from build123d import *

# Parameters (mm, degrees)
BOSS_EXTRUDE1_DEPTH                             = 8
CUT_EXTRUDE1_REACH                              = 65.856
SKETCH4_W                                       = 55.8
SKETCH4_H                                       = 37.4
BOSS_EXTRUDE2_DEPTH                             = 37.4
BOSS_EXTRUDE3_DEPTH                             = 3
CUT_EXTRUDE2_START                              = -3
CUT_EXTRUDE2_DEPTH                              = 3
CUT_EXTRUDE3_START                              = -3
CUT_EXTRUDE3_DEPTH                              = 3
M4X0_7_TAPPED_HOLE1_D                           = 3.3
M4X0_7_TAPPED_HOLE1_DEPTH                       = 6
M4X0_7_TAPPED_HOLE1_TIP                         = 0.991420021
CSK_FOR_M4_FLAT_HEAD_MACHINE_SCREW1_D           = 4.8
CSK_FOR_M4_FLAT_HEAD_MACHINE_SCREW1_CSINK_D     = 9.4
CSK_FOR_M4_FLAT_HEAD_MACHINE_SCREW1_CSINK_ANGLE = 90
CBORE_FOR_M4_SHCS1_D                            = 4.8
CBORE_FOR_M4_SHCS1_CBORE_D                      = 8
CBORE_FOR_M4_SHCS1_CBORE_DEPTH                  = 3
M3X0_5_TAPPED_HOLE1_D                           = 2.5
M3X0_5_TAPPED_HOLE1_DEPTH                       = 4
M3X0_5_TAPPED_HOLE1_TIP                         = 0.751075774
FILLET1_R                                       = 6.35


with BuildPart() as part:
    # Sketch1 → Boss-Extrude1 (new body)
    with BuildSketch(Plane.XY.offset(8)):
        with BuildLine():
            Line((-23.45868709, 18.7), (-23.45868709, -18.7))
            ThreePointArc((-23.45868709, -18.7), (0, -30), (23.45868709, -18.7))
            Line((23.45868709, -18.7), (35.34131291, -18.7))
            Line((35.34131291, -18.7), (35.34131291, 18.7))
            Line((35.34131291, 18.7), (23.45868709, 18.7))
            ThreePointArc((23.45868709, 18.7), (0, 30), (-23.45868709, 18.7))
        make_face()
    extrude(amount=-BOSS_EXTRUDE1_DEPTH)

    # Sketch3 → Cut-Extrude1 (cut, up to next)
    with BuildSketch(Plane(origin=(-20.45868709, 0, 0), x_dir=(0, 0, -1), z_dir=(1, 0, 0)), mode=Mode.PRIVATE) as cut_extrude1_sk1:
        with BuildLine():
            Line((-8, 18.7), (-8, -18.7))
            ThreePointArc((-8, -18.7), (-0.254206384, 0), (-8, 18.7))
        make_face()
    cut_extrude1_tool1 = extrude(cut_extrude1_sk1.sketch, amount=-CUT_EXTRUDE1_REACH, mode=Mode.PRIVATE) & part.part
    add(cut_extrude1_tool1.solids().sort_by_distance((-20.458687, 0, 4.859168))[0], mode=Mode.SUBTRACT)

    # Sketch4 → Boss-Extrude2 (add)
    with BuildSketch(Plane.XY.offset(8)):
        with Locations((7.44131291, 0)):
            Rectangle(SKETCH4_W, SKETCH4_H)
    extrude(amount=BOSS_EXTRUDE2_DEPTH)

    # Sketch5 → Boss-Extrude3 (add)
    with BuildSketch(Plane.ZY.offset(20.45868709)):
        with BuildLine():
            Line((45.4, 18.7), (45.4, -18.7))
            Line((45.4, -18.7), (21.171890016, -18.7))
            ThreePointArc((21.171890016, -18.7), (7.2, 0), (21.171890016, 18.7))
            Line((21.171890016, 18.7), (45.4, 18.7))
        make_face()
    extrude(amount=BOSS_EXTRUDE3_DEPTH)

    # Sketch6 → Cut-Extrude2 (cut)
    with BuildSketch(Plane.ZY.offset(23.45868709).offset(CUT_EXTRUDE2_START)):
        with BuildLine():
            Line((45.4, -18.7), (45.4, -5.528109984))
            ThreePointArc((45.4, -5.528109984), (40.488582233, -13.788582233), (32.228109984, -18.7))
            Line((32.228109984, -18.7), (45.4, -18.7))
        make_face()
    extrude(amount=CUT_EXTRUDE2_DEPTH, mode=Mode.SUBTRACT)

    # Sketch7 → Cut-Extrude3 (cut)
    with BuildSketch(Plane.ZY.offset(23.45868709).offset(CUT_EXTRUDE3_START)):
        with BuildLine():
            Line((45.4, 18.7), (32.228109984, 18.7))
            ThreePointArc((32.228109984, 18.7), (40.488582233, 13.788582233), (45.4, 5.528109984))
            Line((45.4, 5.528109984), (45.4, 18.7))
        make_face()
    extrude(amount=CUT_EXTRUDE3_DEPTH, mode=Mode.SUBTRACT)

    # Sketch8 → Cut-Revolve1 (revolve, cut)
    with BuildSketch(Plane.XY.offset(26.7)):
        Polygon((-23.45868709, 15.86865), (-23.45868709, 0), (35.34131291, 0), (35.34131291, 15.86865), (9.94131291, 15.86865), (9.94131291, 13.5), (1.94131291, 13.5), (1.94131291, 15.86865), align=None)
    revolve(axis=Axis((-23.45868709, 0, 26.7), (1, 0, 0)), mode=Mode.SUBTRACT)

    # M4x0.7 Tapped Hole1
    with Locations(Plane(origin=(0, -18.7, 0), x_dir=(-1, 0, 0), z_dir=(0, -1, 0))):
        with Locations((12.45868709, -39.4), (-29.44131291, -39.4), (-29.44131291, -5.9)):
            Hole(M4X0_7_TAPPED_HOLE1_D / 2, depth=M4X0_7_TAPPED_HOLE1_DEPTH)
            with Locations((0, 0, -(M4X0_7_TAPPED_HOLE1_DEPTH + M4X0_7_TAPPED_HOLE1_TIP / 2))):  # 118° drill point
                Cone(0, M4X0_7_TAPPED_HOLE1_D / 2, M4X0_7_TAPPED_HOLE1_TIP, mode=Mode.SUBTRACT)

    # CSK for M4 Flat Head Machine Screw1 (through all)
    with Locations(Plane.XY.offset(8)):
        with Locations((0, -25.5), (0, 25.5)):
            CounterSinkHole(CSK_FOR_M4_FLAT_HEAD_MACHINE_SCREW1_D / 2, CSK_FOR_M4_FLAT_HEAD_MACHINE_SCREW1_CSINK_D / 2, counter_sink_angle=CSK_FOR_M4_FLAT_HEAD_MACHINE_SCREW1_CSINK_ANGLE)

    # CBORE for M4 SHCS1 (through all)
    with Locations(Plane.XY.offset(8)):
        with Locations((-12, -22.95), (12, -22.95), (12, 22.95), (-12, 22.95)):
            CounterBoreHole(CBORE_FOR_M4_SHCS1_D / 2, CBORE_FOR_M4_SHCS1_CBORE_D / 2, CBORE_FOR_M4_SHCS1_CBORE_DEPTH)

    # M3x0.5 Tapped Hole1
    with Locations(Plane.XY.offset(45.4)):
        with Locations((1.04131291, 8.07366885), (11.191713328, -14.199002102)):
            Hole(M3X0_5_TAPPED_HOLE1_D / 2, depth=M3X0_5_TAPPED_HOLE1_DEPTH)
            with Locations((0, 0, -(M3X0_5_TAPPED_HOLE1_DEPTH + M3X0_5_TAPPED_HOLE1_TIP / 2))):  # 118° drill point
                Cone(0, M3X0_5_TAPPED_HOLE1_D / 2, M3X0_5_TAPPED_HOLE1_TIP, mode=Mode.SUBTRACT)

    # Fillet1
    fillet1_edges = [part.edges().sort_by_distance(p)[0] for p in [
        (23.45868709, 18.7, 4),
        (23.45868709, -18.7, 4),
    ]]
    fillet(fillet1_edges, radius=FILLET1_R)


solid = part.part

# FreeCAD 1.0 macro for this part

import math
import FreeCAD as App
import Part
import Sketcher


def edges_at(feature, points):
    """Names of the edges that pass closest to the given points."""
    edges = feature.Shape.Edges
    near = lambda p: min(range(len(edges)), key=lambda i: edges[i].distToShape(Part.Vertex(*p))[0])
    return sorted({f"Edge{near(p) + 1}" for p in points})


def add_polygon(sketch, points):
    """Adds a closed chain of lines whose ends are joined by coincident constraints."""
    first, n = sketch.GeometryCount, len(points)
    for a, b in zip(points, points[1:] + points[:1]):
        sketch.addGeometry(Part.LineSegment(App.Vector(*a, 0), App.Vector(*b, 0)), False)
    for i in range(n):
        sketch.addConstraint(Sketcher.Constraint("Coincident", first + i, 2, first + (i + 1) % n, 1))

doc = App.newDocument("Part")
body = doc.addObject("PartDesign::Body", "Body")

# Sketch on XY plane
sketch1 = body.newObject("Sketcher::SketchObject", "Sketch")
sketch1.AttachmentSupport = (doc.getObject("XY_Plane"), [""])
sketch1.MapMode = "FlatFace"
sketch1.AttachmentOffset = App.Placement(App.Vector(0, 0, 8), App.Rotation())
sketch1.addGeometry([
    Part.LineSegment(App.Vector(-23, 19, 0), App.Vector(-23, -19, 0)),  # 0
    Part.ArcOfCircle(Part.Circle(App.Vector(0, 0, 0), App.Vector(0, 0, 1), 30), math.radians(-141), math.radians(-39)),  # 1
    Part.LineSegment(App.Vector(23, -19, 0), App.Vector(35, -19, 0)),  # 2
    Part.LineSegment(App.Vector(35, -19, 0), App.Vector(35, 19, 0)),  # 3
    Part.LineSegment(App.Vector(35, 19, 0), App.Vector(23, 19, 0)),  # 4
    Part.ArcOfCircle(Part.Circle(App.Vector(0, 0, 0), App.Vector(0, 0, 1), 30), math.radians(39), math.radians(141)),  # 5
], False)
sketch1.addConstraint([
    Sketcher.Constraint("Coincident", 0, 2, 1, 1),
    Sketcher.Constraint("Coincident", 1, 2, 2, 1),
    Sketcher.Constraint("Coincident", 2, 2, 3, 1),
    Sketcher.Constraint("Coincident", 3, 2, 4, 1),
    Sketcher.Constraint("Coincident", 4, 2, 5, 1),
    Sketcher.Constraint("Coincident", 5, 2, 0, 1),
    Sketcher.Constraint("Vertical", 0),
    Sketcher.Constraint("Horizontal", 2),
    Sketcher.Constraint("Vertical", 3),
    Sketcher.Constraint("Horizontal", 4),
    Sketcher.Constraint("Coincident", 1, 3, -1, 1),
    Sketcher.Constraint("Coincident", 5, 3, -1, 1),
    Sketcher.Constraint("Equal", 1, 5),
    Sketcher.Constraint("Horizontal", 0, 2, 1, 2),
    Sketcher.Constraint("Horizontal", 4, 2, 5, 2),
    Sketcher.Constraint("Radius", 1, 30.0),
    Sketcher.Constraint("DistanceY", 0, 2, 0, 1, 37.4),
    Sketcher.Constraint("DistanceX", 0, 2, 2, 2, 58.8),
])
pad1 = body.newObject("PartDesign::Pad", "Pad")
pad1.Profile = sketch1
pad1.Length = 8
pad1.Reversed = True

# Sketch on YZ plane
sketch2 = body.newObject("Sketcher::SketchObject", "Sketch001")
sketch2.AttachmentSupport = (doc.getObject("YZ_Plane"), [""])
sketch2.MapMode = "FlatFace"
sketch2.AttachmentOffset = App.Placement(App.Vector(0, 0, -20.458687), App.Rotation())
sketch2.addGeometry([
    Part.LineSegment(App.Vector(19, 8, 0), App.Vector(-19, 8, 0)),
    Part.ArcOfCircle(Part.Circle(App.Vector(0, 27, 0), App.Vector(0, 0, 1), 26), math.radians(-135), math.radians(-45)),
], False)
sketch2.addConstraint([
    Sketcher.Constraint("Coincident", 0, 1, 1, 2),
    Sketcher.Constraint("Coincident", 1, 1, 0, 2),
    Sketcher.Constraint("Horizontal", 0),
    Sketcher.Constraint("PointOnObject", 1, 3, -2),
    Sketcher.Constraint("DistanceX", 0, 2, 0, 1, 37.4),
    Sketcher.Constraint("DistanceY", -1, 1, 0, 1, 8.0),
    Sketcher.Constraint("DistanceY", -1, 1, 1, 3, 26.7),
])
pocket1 = body.newObject("PartDesign::Pocket", "Pocket")
pocket1.Profile = sketch2
pocket1.Type = "UpToFirst"

# Sketch on XY plane
sketch3 = body.newObject("Sketcher::SketchObject", "Sketch002")
sketch3.AttachmentSupport = (doc.getObject("XY_Plane"), [""])
sketch3.MapMode = "FlatFace"
sketch3.AttachmentOffset = App.Placement(App.Vector(0, 0, 8), App.Rotation())
add_polygon(sketch3, [(-20, 19), (-20, -19), (35, -19), (35, 19)])  # lines 0-3
sketch3.addConstraint([
    Sketcher.Constraint("Vertical", 0),
    Sketcher.Constraint("Horizontal", 1),
    Sketcher.Constraint("Vertical", 2),
    Sketcher.Constraint("Horizontal", 3),
    Sketcher.Constraint("DistanceX", 1, 1, 1, 2, 55.8),
    Sketcher.Constraint("DistanceY", 0, 2, 0, 1, 37.4),
    Sketcher.Constraint("DistanceY", 0, 2, -1, 1, 18.7),
    Sketcher.Constraint("DistanceX", 0, 2, -1, 1, 20.458687),
])
pad2 = body.newObject("PartDesign::Pad", "Pad001")
pad2.Profile = sketch3
pad2.Length = 37.4

# Sketch on YZ plane
sketch4 = body.newObject("Sketcher::SketchObject", "Sketch003")
sketch4.AttachmentSupport = (doc.getObject("YZ_Plane"), [""])
sketch4.MapMode = "FlatFace"
sketch4.AttachmentOffset = App.Placement(App.Vector(0, 0, -20.458687), App.Rotation())
sketch4.addGeometry([
    Part.LineSegment(App.Vector(-19, 45, 0), App.Vector(19, 45, 0)),
    Part.LineSegment(App.Vector(19, 45, 0), App.Vector(19, 21, 0)),
    Part.ArcOfCircle(Part.Circle(App.Vector(0, 27, 0), App.Vector(0, 0, 1), 20), math.radians(-164), math.radians(-16)),
    Part.LineSegment(App.Vector(-19, 21, 0), App.Vector(-19, 45, 0)),
], False)
sketch4.addConstraint([
    Sketcher.Constraint("Coincident", 0, 2, 1, 1),
    Sketcher.Constraint("Coincident", 1, 2, 2, 2),
    Sketcher.Constraint("Coincident", 2, 1, 3, 1),
    Sketcher.Constraint("Coincident", 3, 2, 0, 1),
    Sketcher.Constraint("Horizontal", 0),
    Sketcher.Constraint("Vertical", 1),
    Sketcher.Constraint("Vertical", 3),
    Sketcher.Constraint("Symmetric", 1, 2, 2, 1, -2),
    Sketcher.Constraint("Radius", 2, 19.5),
    Sketcher.Constraint("DistanceX", 0, 1, 0, 2, 37.4),
    Sketcher.Constraint("DistanceY", -1, 1, 2, 3, 26.7),
    Sketcher.Constraint("DistanceY", -1, 1, 0, 2, 45.4),
])
pad3 = body.newObject("PartDesign::Pad", "Pad002")
pad3.Profile = sketch4
pad3.Length = 3
pad3.Reversed = True

# Sketch on YZ plane
sketch5 = body.newObject("Sketcher::SketchObject", "Sketch004")
sketch5.AttachmentSupport = (doc.getObject("YZ_Plane"), [""])
sketch5.MapMode = "FlatFace"
sketch5.AttachmentOffset = App.Placement(App.Vector(0, 0, -20.458687), App.Rotation())
sketch5.addGeometry([
    Part.LineSegment(App.Vector(-19, 45, 0), App.Vector(-6, 45, 0)),
    Part.ArcOfCircle(Part.Circle(App.Vector(0, 27, 0), App.Vector(0, 0, 1), 20), math.radians(106), math.radians(164)),
    Part.LineSegment(App.Vector(-19, 32, 0), App.Vector(-19, 45, 0)),
], False)
sketch5.addConstraint([
    Sketcher.Constraint("Coincident", 0, 2, 1, 1),
    Sketcher.Constraint("Coincident", 1, 2, 2, 1),
    Sketcher.Constraint("Coincident", 2, 2, 0, 1),
    Sketcher.Constraint("Horizontal", 0),
    Sketcher.Constraint("Vertical", 2),
    Sketcher.Constraint("PointOnObject", 1, 3, -2),
    Sketcher.Constraint("Equal", 0, 2),
    Sketcher.Constraint("Radius", 1, 19.5),
    Sketcher.Constraint("DistanceY", -1, 1, 1, 3, 26.7),
    Sketcher.Constraint("DistanceY", -1, 1, 0, 2, 45.4),
])
pocket2 = body.newObject("PartDesign::Pocket", "Pocket001")
pocket2.Profile = sketch5
pocket2.Length = 3

# Sketch on YZ plane
sketch6 = body.newObject("Sketcher::SketchObject", "Sketch005")
sketch6.AttachmentSupport = (doc.getObject("YZ_Plane"), [""])
sketch6.MapMode = "FlatFace"
sketch6.AttachmentOffset = App.Placement(App.Vector(0, 0, -20.458687), App.Rotation())
sketch6.addGeometry([
    Part.LineSegment(App.Vector(19, 45, 0), App.Vector(19, 32, 0)),
    Part.ArcOfCircle(Part.Circle(App.Vector(0, 27, 0), App.Vector(0, 0, 1), 20), math.radians(16), math.radians(74)),
    Part.LineSegment(App.Vector(6, 45, 0), App.Vector(19, 45, 0)),
], False)
sketch6.addConstraint([
    Sketcher.Constraint("Coincident", 0, 2, 1, 1),
    Sketcher.Constraint("Coincident", 1, 2, 2, 1),
    Sketcher.Constraint("Coincident", 2, 2, 0, 1),
    Sketcher.Constraint("Vertical", 0),
    Sketcher.Constraint("Horizontal", 2),
    Sketcher.Constraint("PointOnObject", 1, 3, -2),
    Sketcher.Constraint("Equal", 2, 0),
    Sketcher.Constraint("Radius", 1, 19.5),
    Sketcher.Constraint("DistanceY", -1, 1, 1, 3, 26.7),
    Sketcher.Constraint("DistanceX", -1, 1, 0, 2, 18.7),
])
pocket3 = body.newObject("PartDesign::Pocket", "Pocket002")
pocket3.Profile = sketch6
pocket3.Length = 3

# Sketch on XY plane
sketch7 = body.newObject("Sketcher::SketchObject", "Sketch006")
sketch7.AttachmentSupport = (doc.getObject("XY_Plane"), [""])
sketch7.MapMode = "FlatFace"
sketch7.AttachmentOffset = App.Placement(App.Vector(0, 0, 26.7), App.Rotation())
add_polygon(sketch7, [(-23.5, 15.9), (-23.5, 0), (35.3, 0), (35.3, 15.9), (9.9, 15.9), (9.9, 13.5), (1.9, 13.5), (1.9, 15.9)])  # lines 0-7
sketch7.addConstraint([
    Sketcher.Constraint("Vertical", 0),
    Sketcher.Constraint("Horizontal", 1),
    Sketcher.Constraint("Vertical", 2),
    Sketcher.Constraint("Horizontal", 3),
    Sketcher.Constraint("Vertical", 4),
    Sketcher.Constraint("Horizontal", 5),
    Sketcher.Constraint("Vertical", 6),
    Sketcher.Constraint("Horizontal", 7),
    Sketcher.Constraint("PointOnObject", 0, 2, -1),
    Sketcher.Constraint("Horizontal", 3, 2, 6, 2),
    Sketcher.Constraint("Equal", 3, 7),
    Sketcher.Constraint("DistanceX", 5, 2, 5, 1, 8.0),
    Sketcher.Constraint("DistanceX", 1, 1, 1, 2, 58.8),
    Sketcher.Constraint("DistanceY", -1, 1, 4, 2, 13.5),
    Sketcher.Constraint("DistanceY", 0, 2, 0, 1, 15.86865),
    Sketcher.Constraint("DistanceX", 0, 2, -1, 1, 23.458687),
])
groove = body.newObject("PartDesign::Groove", "Groove")
groove.Profile = sketch7
groove.ReferenceAxis = (sketch7, ["H_Axis"])
groove.Angle = 360

# Sketch on XZ plane
sketch8 = body.newObject("Sketcher::SketchObject", "Sketch007")
sketch8.AttachmentSupport = (doc.getObject("XZ_Plane"), [""])
sketch8.MapMode = "FlatFace"
sketch8.AttachmentOffset = App.Placement(App.Vector(0, 0, 18.7), App.Rotation())
sketch8.addGeometry([
    Part.Circle(App.Vector(-12.5, 39.4, 0), App.Vector(0, 0, 1), 1.6),
    Part.Circle(App.Vector(29.4, 39.4, 0), App.Vector(0, 0, 1), 1.6),
    Part.Circle(App.Vector(29.4, 5.9, 0), App.Vector(0, 0, 1), 1.6),
], False)
sketch8.addConstraint([
    Sketcher.Constraint("Equal", 0, 1),
    Sketcher.Constraint("Equal", 1, 2),
    Sketcher.Constraint("Horizontal", 0, 3, 1, 3),
    Sketcher.Constraint("Vertical", 1, 3, 2, 3),
    Sketcher.Constraint("Diameter", 0, 3.3),
    Sketcher.Constraint("DistanceY", -1, 1, 0, 3, 39.4),
    Sketcher.Constraint("DistanceY", -1, 1, 2, 3, 5.9),
    Sketcher.Constraint("DistanceX", 0, 3, 1, 3, 41.9),
    Sketcher.Constraint("DistanceX", 0, 3, -1, 1, 12.458687),
])
doc.recompute()
hole = body.newObject("PartDesign::Hole", "Hole")
hole.Profile = sketch8
hole.ThreadType = "None"
hole.Diameter = 3.3
hole.DepthType = "Dimension"
hole.Depth = 6
hole.DrillPoint = "Angled"
hole.DrillPointAngle = 118

# Sketch on XY plane
sketch9 = body.newObject("Sketcher::SketchObject", "Sketch008")
sketch9.AttachmentSupport = (doc.getObject("XY_Plane"), [""])
sketch9.MapMode = "FlatFace"
sketch9.AttachmentOffset = App.Placement(App.Vector(0, 0, 8), App.Rotation())
sketch9.addGeometry([
    Part.Circle(App.Vector(0, -25.5, 0), App.Vector(0, 0, 1), 2.4),
    Part.Circle(App.Vector(0, 25.5, 0), App.Vector(0, 0, 1), 2.4),
], False)
sketch9.addConstraint([
    Sketcher.Constraint("Equal", 0, 1),
    Sketcher.Constraint("Symmetric", 0, 3, 1, 3, -1, 1),
    Sketcher.Constraint("PointOnObject", 0, 3, -2),
    Sketcher.Constraint("Diameter", 0, 4.8),
    Sketcher.Constraint("DistanceY", 0, 3, 1, 3, 51.0),
])
doc.recompute()
hole2 = body.newObject("PartDesign::Hole", "Hole001")
hole2.Profile = sketch9
hole2.ThreadType = "None"
hole2.Diameter = 4.8
hole2.DepthType = "ThroughAll"
hole2.HoleCutType = "Countersink"
hole2.HoleCutDiameter = 9.4
hole2.HoleCutCountersinkAngle = 90

# Sketch on XY plane
sketch10 = body.newObject("Sketcher::SketchObject", "Sketch009")
sketch10.AttachmentSupport = (doc.getObject("XY_Plane"), [""])
sketch10.MapMode = "FlatFace"
sketch10.AttachmentOffset = App.Placement(App.Vector(0, 0, 8), App.Rotation())
sketch10.addGeometry([
    Part.Circle(App.Vector(-12, -22.9, 0), App.Vector(0, 0, 1), 2.4),
    Part.Circle(App.Vector(12, -22.9, 0), App.Vector(0, 0, 1), 2.4),
    Part.Circle(App.Vector(12, 22.9, 0), App.Vector(0, 0, 1), 2.4),
    Part.Circle(App.Vector(-12, 22.9, 0), App.Vector(0, 0, 1), 2.4),
], False)
sketch10.addConstraint([
    Sketcher.Constraint("Equal", 0, 1),
    Sketcher.Constraint("Equal", 1, 2),
    Sketcher.Constraint("Equal", 2, 3),
    Sketcher.Constraint("Symmetric", 0, 3, 2, 3, -1, 1),
    Sketcher.Constraint("Symmetric", 1, 3, 3, 3, -1, 1),
    Sketcher.Constraint("Symmetric", 0, 3, 1, 3, -2),
    Sketcher.Constraint("Diameter", 0, 4.8),
    Sketcher.Constraint("DistanceX", 0, 3, -1, 1, 12.0),
    Sketcher.Constraint("DistanceY", 1, 3, 2, 3, 45.9),
])
doc.recompute()
hole3 = body.newObject("PartDesign::Hole", "Hole002")
hole3.Profile = sketch10
hole3.ThreadType = "None"
hole3.Diameter = 4.8
hole3.DepthType = "ThroughAll"
hole3.HoleCutType = "Counterbore"
hole3.HoleCutDiameter = 8
hole3.HoleCutDepth = 3

# Sketch on XY plane
sketch11 = body.newObject("Sketcher::SketchObject", "Sketch010")
sketch11.AttachmentSupport = (doc.getObject("XY_Plane"), [""])
sketch11.MapMode = "FlatFace"
sketch11.AttachmentOffset = App.Placement(App.Vector(0, 0, 45.4), App.Rotation())
sketch11.addGeometry([
    Part.Circle(App.Vector(1, 8.1, 0), App.Vector(0, 0, 1), 1.2),
    Part.Circle(App.Vector(11.2, -14.2, 0), App.Vector(0, 0, 1), 1.2),
], False)
sketch11.addConstraint([
    Sketcher.Constraint("Equal", 0, 1),
    Sketcher.Constraint("Diameter", 0, 2.5),
    Sketcher.Constraint("DistanceX", 0, 3, 1, 3, 10.1504),
    Sketcher.Constraint("DistanceY", -1, 1, 0, 3, 8.073669),
    Sketcher.Constraint("DistanceY", 1, 3, 0, 3, 22.272671),
    Sketcher.Constraint("DistanceX", -1, 1, 0, 3, 1.041313),
])
doc.recompute()
hole4 = body.newObject("PartDesign::Hole", "Hole003")
hole4.Profile = sketch11
hole4.ThreadType = "None"
hole4.Diameter = 2.5
hole4.DepthType = "Dimension"
hole4.Depth = 4
hole4.DrillPoint = "Angled"
hole4.DrillPointAngle = 118
doc.recompute()

fillet = body.newObject("PartDesign::Fillet", "Fillet")
fillet.Base = (hole4, edges_at(hole4, [(23.459, 18.7, 4), (23.459, -18.7, 4)]))
fillet.Radius = 6.35

doc.recompute()
